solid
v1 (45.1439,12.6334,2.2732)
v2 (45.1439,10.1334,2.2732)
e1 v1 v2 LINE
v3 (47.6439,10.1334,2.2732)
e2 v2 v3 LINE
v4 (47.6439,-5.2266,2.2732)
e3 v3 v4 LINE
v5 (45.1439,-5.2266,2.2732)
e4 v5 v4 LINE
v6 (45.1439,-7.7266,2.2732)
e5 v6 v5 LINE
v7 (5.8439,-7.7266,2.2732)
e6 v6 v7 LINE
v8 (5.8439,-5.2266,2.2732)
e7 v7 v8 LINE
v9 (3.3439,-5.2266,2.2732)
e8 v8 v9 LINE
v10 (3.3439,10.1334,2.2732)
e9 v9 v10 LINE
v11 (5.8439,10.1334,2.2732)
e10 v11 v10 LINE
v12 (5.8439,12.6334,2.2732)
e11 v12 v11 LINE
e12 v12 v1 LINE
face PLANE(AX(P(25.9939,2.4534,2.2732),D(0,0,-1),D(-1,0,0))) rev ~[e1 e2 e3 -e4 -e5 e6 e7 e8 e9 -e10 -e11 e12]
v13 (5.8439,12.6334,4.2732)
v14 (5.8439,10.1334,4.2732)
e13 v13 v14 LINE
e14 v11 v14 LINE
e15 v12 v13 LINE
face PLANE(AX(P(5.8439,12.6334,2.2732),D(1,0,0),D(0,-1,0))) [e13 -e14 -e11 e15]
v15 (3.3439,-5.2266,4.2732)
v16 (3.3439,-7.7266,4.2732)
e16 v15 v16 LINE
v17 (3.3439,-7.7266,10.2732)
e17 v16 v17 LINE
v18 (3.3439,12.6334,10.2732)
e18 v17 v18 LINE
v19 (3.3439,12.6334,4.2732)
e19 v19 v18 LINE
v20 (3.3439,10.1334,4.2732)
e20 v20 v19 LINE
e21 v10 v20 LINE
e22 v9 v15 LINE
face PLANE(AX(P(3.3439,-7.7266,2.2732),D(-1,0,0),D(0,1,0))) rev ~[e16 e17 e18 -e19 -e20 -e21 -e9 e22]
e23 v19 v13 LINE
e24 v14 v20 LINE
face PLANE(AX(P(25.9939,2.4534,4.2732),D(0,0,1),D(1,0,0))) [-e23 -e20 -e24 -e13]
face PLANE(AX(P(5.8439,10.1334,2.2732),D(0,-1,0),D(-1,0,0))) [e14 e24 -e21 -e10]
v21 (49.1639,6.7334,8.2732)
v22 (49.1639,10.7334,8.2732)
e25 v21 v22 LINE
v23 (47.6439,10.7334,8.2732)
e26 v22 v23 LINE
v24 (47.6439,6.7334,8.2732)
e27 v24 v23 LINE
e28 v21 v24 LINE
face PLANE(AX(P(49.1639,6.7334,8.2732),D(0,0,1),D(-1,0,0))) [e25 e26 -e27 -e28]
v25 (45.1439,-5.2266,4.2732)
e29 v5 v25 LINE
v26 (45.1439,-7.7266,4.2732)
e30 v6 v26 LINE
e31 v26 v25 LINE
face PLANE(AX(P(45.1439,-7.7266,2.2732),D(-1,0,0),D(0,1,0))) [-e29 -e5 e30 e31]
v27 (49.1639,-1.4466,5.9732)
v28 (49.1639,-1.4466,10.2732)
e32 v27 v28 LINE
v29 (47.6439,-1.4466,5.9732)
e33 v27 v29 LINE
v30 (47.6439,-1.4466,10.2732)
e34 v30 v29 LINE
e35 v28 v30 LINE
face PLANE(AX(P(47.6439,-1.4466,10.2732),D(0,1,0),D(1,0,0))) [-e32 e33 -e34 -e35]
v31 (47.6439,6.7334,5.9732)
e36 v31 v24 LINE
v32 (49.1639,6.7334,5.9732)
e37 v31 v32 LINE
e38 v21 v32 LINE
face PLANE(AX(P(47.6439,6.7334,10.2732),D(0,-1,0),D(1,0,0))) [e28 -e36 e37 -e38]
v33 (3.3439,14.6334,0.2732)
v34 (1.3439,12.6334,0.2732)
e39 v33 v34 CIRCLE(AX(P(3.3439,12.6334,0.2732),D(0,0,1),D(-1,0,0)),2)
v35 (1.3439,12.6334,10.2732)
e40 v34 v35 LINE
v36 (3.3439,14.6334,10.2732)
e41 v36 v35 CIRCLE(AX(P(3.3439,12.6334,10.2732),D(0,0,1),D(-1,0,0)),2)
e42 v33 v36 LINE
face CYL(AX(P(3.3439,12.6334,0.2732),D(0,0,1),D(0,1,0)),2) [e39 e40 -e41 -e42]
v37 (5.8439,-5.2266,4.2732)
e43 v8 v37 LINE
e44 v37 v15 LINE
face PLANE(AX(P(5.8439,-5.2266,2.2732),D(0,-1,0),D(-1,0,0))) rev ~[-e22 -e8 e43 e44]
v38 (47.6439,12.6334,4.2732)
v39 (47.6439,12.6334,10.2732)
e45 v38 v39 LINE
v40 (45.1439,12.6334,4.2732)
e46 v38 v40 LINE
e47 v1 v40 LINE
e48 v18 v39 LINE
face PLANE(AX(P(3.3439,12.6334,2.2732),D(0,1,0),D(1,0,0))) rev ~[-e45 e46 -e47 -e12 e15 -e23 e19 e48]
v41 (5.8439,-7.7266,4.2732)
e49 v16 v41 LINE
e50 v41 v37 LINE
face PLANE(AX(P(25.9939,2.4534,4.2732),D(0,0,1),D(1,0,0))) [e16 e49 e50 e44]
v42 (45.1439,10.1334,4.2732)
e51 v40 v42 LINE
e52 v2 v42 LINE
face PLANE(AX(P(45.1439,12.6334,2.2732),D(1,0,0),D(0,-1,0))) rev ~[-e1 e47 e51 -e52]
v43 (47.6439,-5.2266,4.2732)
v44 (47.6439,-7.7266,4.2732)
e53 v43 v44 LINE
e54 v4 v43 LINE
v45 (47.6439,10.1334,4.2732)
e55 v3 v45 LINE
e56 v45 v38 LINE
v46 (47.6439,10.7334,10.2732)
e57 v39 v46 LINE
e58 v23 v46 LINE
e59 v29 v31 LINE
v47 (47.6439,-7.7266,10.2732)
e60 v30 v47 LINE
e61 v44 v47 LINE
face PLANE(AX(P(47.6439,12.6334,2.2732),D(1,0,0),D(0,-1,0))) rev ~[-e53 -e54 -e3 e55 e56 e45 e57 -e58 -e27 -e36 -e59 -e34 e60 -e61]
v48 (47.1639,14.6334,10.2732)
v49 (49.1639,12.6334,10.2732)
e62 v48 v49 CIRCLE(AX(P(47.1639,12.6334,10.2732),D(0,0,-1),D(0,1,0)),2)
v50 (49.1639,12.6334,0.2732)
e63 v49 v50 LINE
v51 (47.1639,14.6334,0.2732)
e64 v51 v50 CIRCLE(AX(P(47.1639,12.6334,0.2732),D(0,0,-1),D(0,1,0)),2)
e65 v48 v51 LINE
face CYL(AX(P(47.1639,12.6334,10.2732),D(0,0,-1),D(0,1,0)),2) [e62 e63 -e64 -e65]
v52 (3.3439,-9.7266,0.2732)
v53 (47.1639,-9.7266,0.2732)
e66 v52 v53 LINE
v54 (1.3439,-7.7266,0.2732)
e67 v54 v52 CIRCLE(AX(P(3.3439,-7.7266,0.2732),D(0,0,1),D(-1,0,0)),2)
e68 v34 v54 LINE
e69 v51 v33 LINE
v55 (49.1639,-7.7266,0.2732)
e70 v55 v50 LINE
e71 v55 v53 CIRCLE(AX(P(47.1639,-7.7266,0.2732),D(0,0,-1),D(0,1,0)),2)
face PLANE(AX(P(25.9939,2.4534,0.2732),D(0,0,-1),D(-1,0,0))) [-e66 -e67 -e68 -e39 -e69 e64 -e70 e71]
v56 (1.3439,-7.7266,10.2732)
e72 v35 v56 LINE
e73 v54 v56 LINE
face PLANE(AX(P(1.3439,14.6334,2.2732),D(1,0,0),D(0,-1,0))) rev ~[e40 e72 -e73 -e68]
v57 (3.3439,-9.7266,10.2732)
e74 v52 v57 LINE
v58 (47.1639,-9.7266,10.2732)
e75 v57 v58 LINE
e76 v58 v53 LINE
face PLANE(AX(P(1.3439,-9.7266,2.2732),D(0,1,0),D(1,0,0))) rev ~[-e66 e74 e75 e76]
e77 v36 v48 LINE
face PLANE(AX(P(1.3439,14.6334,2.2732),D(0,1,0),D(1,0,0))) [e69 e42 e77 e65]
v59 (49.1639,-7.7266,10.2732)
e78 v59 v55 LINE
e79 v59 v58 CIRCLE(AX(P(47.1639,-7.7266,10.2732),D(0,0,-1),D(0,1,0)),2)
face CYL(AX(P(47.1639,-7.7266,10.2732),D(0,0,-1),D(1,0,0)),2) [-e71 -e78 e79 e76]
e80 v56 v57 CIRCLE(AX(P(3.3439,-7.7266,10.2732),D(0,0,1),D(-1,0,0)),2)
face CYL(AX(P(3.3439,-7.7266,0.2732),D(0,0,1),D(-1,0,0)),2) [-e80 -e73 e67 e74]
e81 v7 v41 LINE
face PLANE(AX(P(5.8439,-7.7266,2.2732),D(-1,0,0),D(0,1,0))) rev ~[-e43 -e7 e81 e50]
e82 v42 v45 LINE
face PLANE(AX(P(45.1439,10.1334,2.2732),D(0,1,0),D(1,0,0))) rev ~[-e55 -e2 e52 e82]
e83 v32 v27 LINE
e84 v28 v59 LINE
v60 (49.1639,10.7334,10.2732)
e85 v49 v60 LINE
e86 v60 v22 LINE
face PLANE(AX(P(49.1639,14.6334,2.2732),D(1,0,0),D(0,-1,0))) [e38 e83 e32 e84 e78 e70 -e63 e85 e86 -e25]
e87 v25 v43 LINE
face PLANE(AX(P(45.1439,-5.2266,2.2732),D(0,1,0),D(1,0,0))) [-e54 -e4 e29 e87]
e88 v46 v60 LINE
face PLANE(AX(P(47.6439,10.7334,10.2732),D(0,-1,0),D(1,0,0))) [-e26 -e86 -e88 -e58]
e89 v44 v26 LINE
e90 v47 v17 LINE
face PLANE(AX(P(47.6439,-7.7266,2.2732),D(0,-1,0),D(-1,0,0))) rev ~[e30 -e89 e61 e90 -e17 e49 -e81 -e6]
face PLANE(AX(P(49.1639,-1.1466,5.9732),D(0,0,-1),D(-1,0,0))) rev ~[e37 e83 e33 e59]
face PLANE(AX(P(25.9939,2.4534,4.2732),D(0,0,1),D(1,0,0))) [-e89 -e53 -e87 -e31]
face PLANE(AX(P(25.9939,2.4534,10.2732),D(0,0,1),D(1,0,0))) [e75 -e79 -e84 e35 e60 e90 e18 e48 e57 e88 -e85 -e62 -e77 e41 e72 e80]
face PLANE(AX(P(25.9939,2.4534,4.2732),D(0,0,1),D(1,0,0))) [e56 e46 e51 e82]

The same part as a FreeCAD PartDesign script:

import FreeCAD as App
import Part
import Sketcher
Q = App.Units.Quantity


def edges_at(feature, points):
    """Names of the edges that pass closest to the given points."""
    edges = feature.Shape.Edges
    near = lambda p: min(range(len(edges)), key=lambda i: edges[i].distToShape(Part.Vertex(*p))[0])
    return sorted({f"Edge{near(p) + 1}" for p in points})


def add_polygon(sketch, points):
    """Adds a closed chain of lines whose ends are joined by coincident constraints."""
    first, n = sketch.GeometryCount, len(points)
    for a, b in zip(points, points[1:] + points[:1]):
        sketch.addGeometry(Part.LineSegment(App.Vector(*a, 0), App.Vector(*b, 0)), False)
    for i in range(n):
        sketch.addConstraint(Sketcher.Constraint("Coincident", first + i, 2, first + (i + 1) % n, 1))

doc = App.newDocument("Part")
body = doc.addObject("PartDesign::Body", "Body")

sketch1 = body.newObject("Sketcher::SketchObject", "Sketch")
sketch1.AttachmentSupport = (doc.getObject("XY_Plane"), [""])
sketch1.MapMode = "FlatFace"
sketch1.AttachmentOffset = App.Placement(App.Vector(0, 0, 2.2732), App.Rotation())
add_polygon(sketch1, [(1.3439, -9.7266), (1.3439, 14.6334), (49.1639, 14.6334), (49.1639, -9.7266)])
sketch1.addConstraint(Sketcher.Constraint("Vertical", 0))
sketch1.addConstraint(Sketcher.Constraint("Horizontal", 1))
sketch1.addConstraint(Sketcher.Constraint("Vertical", 2))
sketch1.addConstraint(Sketcher.Constraint("Horizontal", 3))
sketch1.addConstraint(Sketcher.Constraint("DistanceX", 1, 1, 1, 2, Q("47.82 mm")))
sketch1.addConstraint(Sketcher.Constraint("DistanceY", 0, 1, 0, 2, Q("24.36 mm")))
sketch1.addConstraint(Sketcher.Constraint("DistanceX", -1, 1, 0, 2, Q("1.344 mm")))
sketch1.addConstraint(Sketcher.Constraint("DistanceY", -1, 1, 0, 2, Q("14.6334 mm")))
pad1 = body.newObject("PartDesign::Pad", "Pad")
pad1.Profile = sketch1
pad1.Length = 2
pad1.Reversed = True

sketch2 = body.newObject("Sketcher::SketchObject", "Sketch001")
sketch2.AttachmentSupport = (doc.getObject("XY_Plane"), [""])
sketch2.MapMode = "FlatFace"
sketch2.AttachmentOffset = App.Placement(App.Vector(0, 0, 2.2732), App.Rotation())
add_polygon(sketch2, [(49.1639, 14.6334), (1.3439, 14.6334), (1.3439, -9.7266), (49.1639, -9.7266)])
add_polygon(sketch2, [(47.6439, 12.6334), (47.6439, -7.7266), (3.3439, -7.7266), (3.3439, 12.6334)])
sketch2.addConstraint(Sketcher.Constraint("Horizontal", 0))
sketch2.addConstraint(Sketcher.Constraint("Vertical", 1))
sketch2.addConstraint(Sketcher.Constraint("Horizontal", 2))
sketch2.addConstraint(Sketcher.Constraint("Vertical", 3))
sketch2.addConstraint(Sketcher.Constraint("Vertical", 4))
sketch2.addConstraint(Sketcher.Constraint("Horizontal", 5))
sketch2.addConstraint(Sketcher.Constraint("Vertical", 6))
sketch2.addConstraint(Sketcher.Constraint("Horizontal", 7))
sketch2.addConstraint(Sketcher.Constraint("DistanceX", 5, 2, 5, 1, Q("44.3 mm")))
sketch2.addConstraint(Sketcher.Constraint("DistanceY", 2, 2, 4, 2, Q("2 mm")))
sketch2.addConstraint(Sketcher.Constraint("DistanceX", 1, 2, 5, 2, Q("2 mm")))
sketch2.addConstraint(Sketcher.Constraint("DistanceY", 6, 2, 0, 2, Q("2 mm")))
sketch2.addConstraint(Sketcher.Constraint("DistanceX", 0, 2, 0, 1, Q("47.82 mm")))
sketch2.addConstraint(Sketcher.Constraint("DistanceY", 1, 2, 1, 1, Q("24.36 mm")))
sketch2.addConstraint(Sketcher.Constraint("DistanceX", -1, 1, 0, 2, Q("1.344 mm")))
sketch2.addConstraint(Sketcher.Constraint("DistanceY", -1, 1, 0, 2, Q("14.6334 mm")))
pad2 = body.newObject("PartDesign::Pad", "Pad001")
pad2.Profile = sketch2
pad2.Length = 8

sketch3 = body.newObject("Sketcher::SketchObject", "Sketch002")
sketch3.AttachmentSupport = (doc.getObject("XY_Plane"), [""])
sketch3.MapMode = "FlatFace"
sketch3.AttachmentOffset = App.Placement(App.Vector(0, 0, 10.2732), App.Rotation())
add_polygon(sketch3, [(49.1639, 6.4334), (47.6439, 6.4334), (47.6439, -1.1466), (49.1639, -1.1466)])
sketch3.addConstraint(Sketcher.Constraint("Horizontal", 0))
sketch3.addConstraint(Sketcher.Constraint("Vertical", 1))
sketch3.addConstraint(Sketcher.Constraint("Horizontal", 2))
sketch3.addConstraint(Sketcher.Constraint("Vertical", 3))
sketch3.addConstraint(Sketcher.Constraint("DistanceX", 0, 2, 0, 1, Q("1.52 mm")))
sketch3.addConstraint(Sketcher.Constraint("DistanceY", 1, 2, 1, 1, Q("7.58 mm")))
sketch3.addConstraint(Sketcher.Constraint("DistanceX", -1, 1, 0, 2, Q("47.644 mm")))
sketch3.addConstraint(Sketcher.Constraint("DistanceY", -1, 1, 0, 2, Q("6.4334 mm")))
pocket1 = body.newObject("PartDesign::Pocket", "Pocket")
pocket1.Profile = sketch3
pocket1.Length = 4.3

sketch4 = body.newObject("Sketcher::SketchObject", "Sketch003")
sketch4.AttachmentSupport = (doc.getObject("XZ_Plane"), [""])
sketch4.MapMode = "FlatFace"
sketch4.AttachmentOffset = App.Placement(App.Vector(0, 0, 1.1466), App.Rotation())
add_polygon(sketch4, [(49.1639, 10.2732), (49.1639, 5.9732), (47.6439, 5.9732), (47.6439, 10.2732)])
sketch4.addConstraint(Sketcher.Constraint("Vertical", 0))
sketch4.addConstraint(Sketcher.Constraint("Horizontal", 1))
sketch4.addConstraint(Sketcher.Constraint("Vertical", 2))
sketch4.addConstraint(Sketcher.Constraint("Horizontal", 3))
sketch4.addConstraint(Sketcher.Constraint("DistanceY", 0, 2, 0, 1, Q("4.3 mm")))
sketch4.addConstraint(Sketcher.Constraint("DistanceX", 1, 2, 1, 1, Q("1.52 mm")))
sketch4.addConstraint(Sketcher.Constraint("DistanceX", -1, 1, 0, 2, Q("49.164 mm")))
sketch4.addConstraint(Sketcher.Constraint("DistanceY", -1, 1, 0, 2, Q("5.9732 mm")))
pocket2 = body.newObject("PartDesign::Pocket", "Pocket001")
pocket2.Profile = sketch4
pocket2.Length = 0.3
pocket2.Reversed = True

sketch5 = body.newObject("Sketcher::SketchObject", "Sketch004")
sketch5.AttachmentSupport = (doc.getObject("XZ_Plane"), [""])
sketch5.MapMode = "FlatFace"
sketch5.AttachmentOffset = App.Placement(App.Vector(0, 0, -6.4334), App.Rotation())
add_polygon(sketch5, [(47.6439, 10.2732), (47.6439, 5.9732), (49.1639, 5.9732), (49.1639, 10.2732)])
sketch5.addConstraint(Sketcher.Constraint("Vertical", 0))
sketch5.addConstraint(Sketcher.Constraint("Horizontal", 1))
sketch5.addConstraint(Sketcher.Constraint("Vertical", 2))
sketch5.addConstraint(Sketcher.Constraint("Horizontal", 3))
sketch5.addConstraint(Sketcher.Constraint("DistanceY", 0, 2, 0, 1, Q("4.3 mm")))
sketch5.addConstraint(Sketcher.Constraint("DistanceX", 1, 1, 1, 2, Q("1.52 mm")))
sketch5.addConstraint(Sketcher.Constraint("DistanceX", -1, 1, 0, 2, Q("47.644 mm")))
sketch5.addConstraint(Sketcher.Constraint("DistanceY", -1, 1, 0, 2, Q("5.9732 mm")))
pocket3 = body.newObject("PartDesign::Pocket", "Pocket002")
pocket3.Profile = sketch5
pocket3.Length = 0.3

sketch6 = body.newObject("Sketcher::SketchObject", "Sketch005")
sketch6.AttachmentSupport = (doc.getObject("XZ_Plane"), [""])
sketch6.MapMode = "FlatFace"
sketch6.AttachmentOffset = App.Placement(App.Vector(0, 0, -6.7334), App.Rotation())
add_polygon(sketch6, [(49.1639, 8.2732), (49.1639, 10.2732), (47.6439, 10.2732), (47.6439, 8.2732)])
sketch6.addConstraint(Sketcher.Constraint("Vertical", 0))
sketch6.addConstraint(Sketcher.Constraint("Horizontal", 1))
sketch6.addConstraint(Sketcher.Constraint("Vertical", 2))
sketch6.addConstraint(Sketcher.Constraint("Horizontal", 3))
sketch6.addConstraint(Sketcher.Constraint("DistanceY", 0, 1, 0, 2, Q("2 mm")))
sketch6.addConstraint(Sketcher.Constraint("DistanceX", 1, 2, 1, 1, Q("1.52 mm")))
sketch6.addConstraint(Sketcher.Constraint("DistanceX", -1, 1, 0, 2, Q("49.164 mm")))
sketch6.addConstraint(Sketcher.Constraint("DistanceY", -1, 1, 0, 2, Q("10.2732 mm")))
pocket4 = body.newObject("PartDesign::Pocket", "Pocket003")
pocket4.Profile = sketch6
pocket4.Length = 4

sketch7 = body.newObject("Sketcher::SketchObject", "Sketch006")
sketch7.AttachmentSupport = (doc.getObject("XY_Plane"), [""])
sketch7.MapMode = "FlatFace"
sketch7.AttachmentOffset = App.Placement(App.Vector(0, 0, 2.2732), App.Rotation())
add_polygon(sketch7, [(5.8439, 12.6334), (3.3439, 12.6334), (3.3439, 10.1334), (5.8439, 10.1334)])
add_polygon(sketch7, [(47.6439, 10.1334), (47.6439, 12.6334), (45.1439, 12.6334), (45.1439, 10.1334)])
add_polygon(sketch7, [(3.3439, -5.2266), (3.3439, -7.7266), (5.8439, -7.7266), (5.8439, -5.2266)])
add_polygon(sketch7, [(45.1439, -7.7266), (47.6439, -7.7266), (47.6439, -5.2266), (45.1439, -5.2266)])
sketch7.addConstraint(Sketcher.Constraint("Horizontal", 0))
sketch7.addConstraint(Sketcher.Constraint("Vertical", 1))
sketch7.addConstraint(Sketcher.Constraint("Horizontal", 2))
sketch7.addConstraint(Sketcher.Constraint("Vertical", 3))
sketch7.addConstraint(Sketcher.Constraint("Vertical", 4))
sketch7.addConstraint(Sketcher.Constraint("Horizontal", 5))
sketch7.addConstraint(Sketcher.Constraint("Vertical", 6))
sketch7.addConstraint(Sketcher.Constraint("Horizontal", 7))
sketch7.addConstraint(Sketcher.Constraint("Vertical", 8))
sketch7.addConstraint(Sketcher.Constraint("Horizontal", 9))
sketch7.addConstraint(Sketcher.Constraint("Vertical", 10))
sketch7.addConstraint(Sketcher.Constraint("Horizontal", 11))
sketch7.addConstraint(Sketcher.Constraint("Horizontal", 12))
sketch7.addConstraint(Sketcher.Constraint("Vertical", 13))
sketch7.addConstraint(Sketcher.Constraint("Horizontal", 14))
sketch7.addConstraint(Sketcher.Constraint("Vertical", 15))
sketch7.addConstraint(Sketcher.Constraint("Horizontal", 3, 2, 4, 2))
sketch7.addConstraint(Sketcher.Constraint("Horizontal", 2, 2, 6, 2))
sketch7.addConstraint(Sketcher.Constraint("Horizontal", 9, 2, 12, 2))
sketch7.addConstraint(Sketcher.Constraint("Horizontal", 11, 2, 13, 2))
sketch7.addConstraint(Sketcher.Constraint("Vertical", 1, 2, 8, 2))
sketch7.addConstraint(Sketcher.Constraint("Vertical", 3, 2, 9, 2))
sketch7.addConstraint(Sketcher.Constraint("Vertical", 7, 2, 12, 2))
sketch7.addConstraint(Sketcher.Constraint("Vertical", 6, 2, 14, 2))
sketch7.addConstraint(Sketcher.Constraint("Equal", 2, 5))
sketch7.addConstraint(Sketcher.Constraint("Equal", 14, 1))
sketch7.addConstraint(Sketcher.Constraint("Equal", 6, 8))
sketch7.addConstraint(Sketcher.Constraint("DistanceX", 0, 2, 0, 1, Q("2.5 mm")))
sketch7.addConstraint(Sketcher.Constraint("DistanceX", 3, 2, 4, 2, Q("41.8 mm")))
sketch7.addConstraint(Sketcher.Constraint("DistanceY", 8, 2, 1, 2, Q("17.86 mm")))
sketch7.addConstraint(Sketcher.Constraint("DistanceX", -1, 1, 0, 2, Q("3.344 mm")))
sketch7.addConstraint(Sketcher.Constraint("DistanceY", -1, 1, 0, 2, Q("12.6334 mm")))
pad3 = body.newObject("PartDesign::Pad", "Pad002")
pad3.Profile = sketch7
pad3.Length = 2
doc.recompute()

fillet = body.newObject("PartDesign::Fillet", "Fillet")
fillet.Base = (pad3, edges_at(pad3, [
    (49.164, 14.633, 5.273),
    (49.164, -9.727, 5.273),
    (1.344, 14.633, 5.273),
    (1.344, -9.727, 5.273),
]))
fillet.Radius = 2

doc.recompute()
